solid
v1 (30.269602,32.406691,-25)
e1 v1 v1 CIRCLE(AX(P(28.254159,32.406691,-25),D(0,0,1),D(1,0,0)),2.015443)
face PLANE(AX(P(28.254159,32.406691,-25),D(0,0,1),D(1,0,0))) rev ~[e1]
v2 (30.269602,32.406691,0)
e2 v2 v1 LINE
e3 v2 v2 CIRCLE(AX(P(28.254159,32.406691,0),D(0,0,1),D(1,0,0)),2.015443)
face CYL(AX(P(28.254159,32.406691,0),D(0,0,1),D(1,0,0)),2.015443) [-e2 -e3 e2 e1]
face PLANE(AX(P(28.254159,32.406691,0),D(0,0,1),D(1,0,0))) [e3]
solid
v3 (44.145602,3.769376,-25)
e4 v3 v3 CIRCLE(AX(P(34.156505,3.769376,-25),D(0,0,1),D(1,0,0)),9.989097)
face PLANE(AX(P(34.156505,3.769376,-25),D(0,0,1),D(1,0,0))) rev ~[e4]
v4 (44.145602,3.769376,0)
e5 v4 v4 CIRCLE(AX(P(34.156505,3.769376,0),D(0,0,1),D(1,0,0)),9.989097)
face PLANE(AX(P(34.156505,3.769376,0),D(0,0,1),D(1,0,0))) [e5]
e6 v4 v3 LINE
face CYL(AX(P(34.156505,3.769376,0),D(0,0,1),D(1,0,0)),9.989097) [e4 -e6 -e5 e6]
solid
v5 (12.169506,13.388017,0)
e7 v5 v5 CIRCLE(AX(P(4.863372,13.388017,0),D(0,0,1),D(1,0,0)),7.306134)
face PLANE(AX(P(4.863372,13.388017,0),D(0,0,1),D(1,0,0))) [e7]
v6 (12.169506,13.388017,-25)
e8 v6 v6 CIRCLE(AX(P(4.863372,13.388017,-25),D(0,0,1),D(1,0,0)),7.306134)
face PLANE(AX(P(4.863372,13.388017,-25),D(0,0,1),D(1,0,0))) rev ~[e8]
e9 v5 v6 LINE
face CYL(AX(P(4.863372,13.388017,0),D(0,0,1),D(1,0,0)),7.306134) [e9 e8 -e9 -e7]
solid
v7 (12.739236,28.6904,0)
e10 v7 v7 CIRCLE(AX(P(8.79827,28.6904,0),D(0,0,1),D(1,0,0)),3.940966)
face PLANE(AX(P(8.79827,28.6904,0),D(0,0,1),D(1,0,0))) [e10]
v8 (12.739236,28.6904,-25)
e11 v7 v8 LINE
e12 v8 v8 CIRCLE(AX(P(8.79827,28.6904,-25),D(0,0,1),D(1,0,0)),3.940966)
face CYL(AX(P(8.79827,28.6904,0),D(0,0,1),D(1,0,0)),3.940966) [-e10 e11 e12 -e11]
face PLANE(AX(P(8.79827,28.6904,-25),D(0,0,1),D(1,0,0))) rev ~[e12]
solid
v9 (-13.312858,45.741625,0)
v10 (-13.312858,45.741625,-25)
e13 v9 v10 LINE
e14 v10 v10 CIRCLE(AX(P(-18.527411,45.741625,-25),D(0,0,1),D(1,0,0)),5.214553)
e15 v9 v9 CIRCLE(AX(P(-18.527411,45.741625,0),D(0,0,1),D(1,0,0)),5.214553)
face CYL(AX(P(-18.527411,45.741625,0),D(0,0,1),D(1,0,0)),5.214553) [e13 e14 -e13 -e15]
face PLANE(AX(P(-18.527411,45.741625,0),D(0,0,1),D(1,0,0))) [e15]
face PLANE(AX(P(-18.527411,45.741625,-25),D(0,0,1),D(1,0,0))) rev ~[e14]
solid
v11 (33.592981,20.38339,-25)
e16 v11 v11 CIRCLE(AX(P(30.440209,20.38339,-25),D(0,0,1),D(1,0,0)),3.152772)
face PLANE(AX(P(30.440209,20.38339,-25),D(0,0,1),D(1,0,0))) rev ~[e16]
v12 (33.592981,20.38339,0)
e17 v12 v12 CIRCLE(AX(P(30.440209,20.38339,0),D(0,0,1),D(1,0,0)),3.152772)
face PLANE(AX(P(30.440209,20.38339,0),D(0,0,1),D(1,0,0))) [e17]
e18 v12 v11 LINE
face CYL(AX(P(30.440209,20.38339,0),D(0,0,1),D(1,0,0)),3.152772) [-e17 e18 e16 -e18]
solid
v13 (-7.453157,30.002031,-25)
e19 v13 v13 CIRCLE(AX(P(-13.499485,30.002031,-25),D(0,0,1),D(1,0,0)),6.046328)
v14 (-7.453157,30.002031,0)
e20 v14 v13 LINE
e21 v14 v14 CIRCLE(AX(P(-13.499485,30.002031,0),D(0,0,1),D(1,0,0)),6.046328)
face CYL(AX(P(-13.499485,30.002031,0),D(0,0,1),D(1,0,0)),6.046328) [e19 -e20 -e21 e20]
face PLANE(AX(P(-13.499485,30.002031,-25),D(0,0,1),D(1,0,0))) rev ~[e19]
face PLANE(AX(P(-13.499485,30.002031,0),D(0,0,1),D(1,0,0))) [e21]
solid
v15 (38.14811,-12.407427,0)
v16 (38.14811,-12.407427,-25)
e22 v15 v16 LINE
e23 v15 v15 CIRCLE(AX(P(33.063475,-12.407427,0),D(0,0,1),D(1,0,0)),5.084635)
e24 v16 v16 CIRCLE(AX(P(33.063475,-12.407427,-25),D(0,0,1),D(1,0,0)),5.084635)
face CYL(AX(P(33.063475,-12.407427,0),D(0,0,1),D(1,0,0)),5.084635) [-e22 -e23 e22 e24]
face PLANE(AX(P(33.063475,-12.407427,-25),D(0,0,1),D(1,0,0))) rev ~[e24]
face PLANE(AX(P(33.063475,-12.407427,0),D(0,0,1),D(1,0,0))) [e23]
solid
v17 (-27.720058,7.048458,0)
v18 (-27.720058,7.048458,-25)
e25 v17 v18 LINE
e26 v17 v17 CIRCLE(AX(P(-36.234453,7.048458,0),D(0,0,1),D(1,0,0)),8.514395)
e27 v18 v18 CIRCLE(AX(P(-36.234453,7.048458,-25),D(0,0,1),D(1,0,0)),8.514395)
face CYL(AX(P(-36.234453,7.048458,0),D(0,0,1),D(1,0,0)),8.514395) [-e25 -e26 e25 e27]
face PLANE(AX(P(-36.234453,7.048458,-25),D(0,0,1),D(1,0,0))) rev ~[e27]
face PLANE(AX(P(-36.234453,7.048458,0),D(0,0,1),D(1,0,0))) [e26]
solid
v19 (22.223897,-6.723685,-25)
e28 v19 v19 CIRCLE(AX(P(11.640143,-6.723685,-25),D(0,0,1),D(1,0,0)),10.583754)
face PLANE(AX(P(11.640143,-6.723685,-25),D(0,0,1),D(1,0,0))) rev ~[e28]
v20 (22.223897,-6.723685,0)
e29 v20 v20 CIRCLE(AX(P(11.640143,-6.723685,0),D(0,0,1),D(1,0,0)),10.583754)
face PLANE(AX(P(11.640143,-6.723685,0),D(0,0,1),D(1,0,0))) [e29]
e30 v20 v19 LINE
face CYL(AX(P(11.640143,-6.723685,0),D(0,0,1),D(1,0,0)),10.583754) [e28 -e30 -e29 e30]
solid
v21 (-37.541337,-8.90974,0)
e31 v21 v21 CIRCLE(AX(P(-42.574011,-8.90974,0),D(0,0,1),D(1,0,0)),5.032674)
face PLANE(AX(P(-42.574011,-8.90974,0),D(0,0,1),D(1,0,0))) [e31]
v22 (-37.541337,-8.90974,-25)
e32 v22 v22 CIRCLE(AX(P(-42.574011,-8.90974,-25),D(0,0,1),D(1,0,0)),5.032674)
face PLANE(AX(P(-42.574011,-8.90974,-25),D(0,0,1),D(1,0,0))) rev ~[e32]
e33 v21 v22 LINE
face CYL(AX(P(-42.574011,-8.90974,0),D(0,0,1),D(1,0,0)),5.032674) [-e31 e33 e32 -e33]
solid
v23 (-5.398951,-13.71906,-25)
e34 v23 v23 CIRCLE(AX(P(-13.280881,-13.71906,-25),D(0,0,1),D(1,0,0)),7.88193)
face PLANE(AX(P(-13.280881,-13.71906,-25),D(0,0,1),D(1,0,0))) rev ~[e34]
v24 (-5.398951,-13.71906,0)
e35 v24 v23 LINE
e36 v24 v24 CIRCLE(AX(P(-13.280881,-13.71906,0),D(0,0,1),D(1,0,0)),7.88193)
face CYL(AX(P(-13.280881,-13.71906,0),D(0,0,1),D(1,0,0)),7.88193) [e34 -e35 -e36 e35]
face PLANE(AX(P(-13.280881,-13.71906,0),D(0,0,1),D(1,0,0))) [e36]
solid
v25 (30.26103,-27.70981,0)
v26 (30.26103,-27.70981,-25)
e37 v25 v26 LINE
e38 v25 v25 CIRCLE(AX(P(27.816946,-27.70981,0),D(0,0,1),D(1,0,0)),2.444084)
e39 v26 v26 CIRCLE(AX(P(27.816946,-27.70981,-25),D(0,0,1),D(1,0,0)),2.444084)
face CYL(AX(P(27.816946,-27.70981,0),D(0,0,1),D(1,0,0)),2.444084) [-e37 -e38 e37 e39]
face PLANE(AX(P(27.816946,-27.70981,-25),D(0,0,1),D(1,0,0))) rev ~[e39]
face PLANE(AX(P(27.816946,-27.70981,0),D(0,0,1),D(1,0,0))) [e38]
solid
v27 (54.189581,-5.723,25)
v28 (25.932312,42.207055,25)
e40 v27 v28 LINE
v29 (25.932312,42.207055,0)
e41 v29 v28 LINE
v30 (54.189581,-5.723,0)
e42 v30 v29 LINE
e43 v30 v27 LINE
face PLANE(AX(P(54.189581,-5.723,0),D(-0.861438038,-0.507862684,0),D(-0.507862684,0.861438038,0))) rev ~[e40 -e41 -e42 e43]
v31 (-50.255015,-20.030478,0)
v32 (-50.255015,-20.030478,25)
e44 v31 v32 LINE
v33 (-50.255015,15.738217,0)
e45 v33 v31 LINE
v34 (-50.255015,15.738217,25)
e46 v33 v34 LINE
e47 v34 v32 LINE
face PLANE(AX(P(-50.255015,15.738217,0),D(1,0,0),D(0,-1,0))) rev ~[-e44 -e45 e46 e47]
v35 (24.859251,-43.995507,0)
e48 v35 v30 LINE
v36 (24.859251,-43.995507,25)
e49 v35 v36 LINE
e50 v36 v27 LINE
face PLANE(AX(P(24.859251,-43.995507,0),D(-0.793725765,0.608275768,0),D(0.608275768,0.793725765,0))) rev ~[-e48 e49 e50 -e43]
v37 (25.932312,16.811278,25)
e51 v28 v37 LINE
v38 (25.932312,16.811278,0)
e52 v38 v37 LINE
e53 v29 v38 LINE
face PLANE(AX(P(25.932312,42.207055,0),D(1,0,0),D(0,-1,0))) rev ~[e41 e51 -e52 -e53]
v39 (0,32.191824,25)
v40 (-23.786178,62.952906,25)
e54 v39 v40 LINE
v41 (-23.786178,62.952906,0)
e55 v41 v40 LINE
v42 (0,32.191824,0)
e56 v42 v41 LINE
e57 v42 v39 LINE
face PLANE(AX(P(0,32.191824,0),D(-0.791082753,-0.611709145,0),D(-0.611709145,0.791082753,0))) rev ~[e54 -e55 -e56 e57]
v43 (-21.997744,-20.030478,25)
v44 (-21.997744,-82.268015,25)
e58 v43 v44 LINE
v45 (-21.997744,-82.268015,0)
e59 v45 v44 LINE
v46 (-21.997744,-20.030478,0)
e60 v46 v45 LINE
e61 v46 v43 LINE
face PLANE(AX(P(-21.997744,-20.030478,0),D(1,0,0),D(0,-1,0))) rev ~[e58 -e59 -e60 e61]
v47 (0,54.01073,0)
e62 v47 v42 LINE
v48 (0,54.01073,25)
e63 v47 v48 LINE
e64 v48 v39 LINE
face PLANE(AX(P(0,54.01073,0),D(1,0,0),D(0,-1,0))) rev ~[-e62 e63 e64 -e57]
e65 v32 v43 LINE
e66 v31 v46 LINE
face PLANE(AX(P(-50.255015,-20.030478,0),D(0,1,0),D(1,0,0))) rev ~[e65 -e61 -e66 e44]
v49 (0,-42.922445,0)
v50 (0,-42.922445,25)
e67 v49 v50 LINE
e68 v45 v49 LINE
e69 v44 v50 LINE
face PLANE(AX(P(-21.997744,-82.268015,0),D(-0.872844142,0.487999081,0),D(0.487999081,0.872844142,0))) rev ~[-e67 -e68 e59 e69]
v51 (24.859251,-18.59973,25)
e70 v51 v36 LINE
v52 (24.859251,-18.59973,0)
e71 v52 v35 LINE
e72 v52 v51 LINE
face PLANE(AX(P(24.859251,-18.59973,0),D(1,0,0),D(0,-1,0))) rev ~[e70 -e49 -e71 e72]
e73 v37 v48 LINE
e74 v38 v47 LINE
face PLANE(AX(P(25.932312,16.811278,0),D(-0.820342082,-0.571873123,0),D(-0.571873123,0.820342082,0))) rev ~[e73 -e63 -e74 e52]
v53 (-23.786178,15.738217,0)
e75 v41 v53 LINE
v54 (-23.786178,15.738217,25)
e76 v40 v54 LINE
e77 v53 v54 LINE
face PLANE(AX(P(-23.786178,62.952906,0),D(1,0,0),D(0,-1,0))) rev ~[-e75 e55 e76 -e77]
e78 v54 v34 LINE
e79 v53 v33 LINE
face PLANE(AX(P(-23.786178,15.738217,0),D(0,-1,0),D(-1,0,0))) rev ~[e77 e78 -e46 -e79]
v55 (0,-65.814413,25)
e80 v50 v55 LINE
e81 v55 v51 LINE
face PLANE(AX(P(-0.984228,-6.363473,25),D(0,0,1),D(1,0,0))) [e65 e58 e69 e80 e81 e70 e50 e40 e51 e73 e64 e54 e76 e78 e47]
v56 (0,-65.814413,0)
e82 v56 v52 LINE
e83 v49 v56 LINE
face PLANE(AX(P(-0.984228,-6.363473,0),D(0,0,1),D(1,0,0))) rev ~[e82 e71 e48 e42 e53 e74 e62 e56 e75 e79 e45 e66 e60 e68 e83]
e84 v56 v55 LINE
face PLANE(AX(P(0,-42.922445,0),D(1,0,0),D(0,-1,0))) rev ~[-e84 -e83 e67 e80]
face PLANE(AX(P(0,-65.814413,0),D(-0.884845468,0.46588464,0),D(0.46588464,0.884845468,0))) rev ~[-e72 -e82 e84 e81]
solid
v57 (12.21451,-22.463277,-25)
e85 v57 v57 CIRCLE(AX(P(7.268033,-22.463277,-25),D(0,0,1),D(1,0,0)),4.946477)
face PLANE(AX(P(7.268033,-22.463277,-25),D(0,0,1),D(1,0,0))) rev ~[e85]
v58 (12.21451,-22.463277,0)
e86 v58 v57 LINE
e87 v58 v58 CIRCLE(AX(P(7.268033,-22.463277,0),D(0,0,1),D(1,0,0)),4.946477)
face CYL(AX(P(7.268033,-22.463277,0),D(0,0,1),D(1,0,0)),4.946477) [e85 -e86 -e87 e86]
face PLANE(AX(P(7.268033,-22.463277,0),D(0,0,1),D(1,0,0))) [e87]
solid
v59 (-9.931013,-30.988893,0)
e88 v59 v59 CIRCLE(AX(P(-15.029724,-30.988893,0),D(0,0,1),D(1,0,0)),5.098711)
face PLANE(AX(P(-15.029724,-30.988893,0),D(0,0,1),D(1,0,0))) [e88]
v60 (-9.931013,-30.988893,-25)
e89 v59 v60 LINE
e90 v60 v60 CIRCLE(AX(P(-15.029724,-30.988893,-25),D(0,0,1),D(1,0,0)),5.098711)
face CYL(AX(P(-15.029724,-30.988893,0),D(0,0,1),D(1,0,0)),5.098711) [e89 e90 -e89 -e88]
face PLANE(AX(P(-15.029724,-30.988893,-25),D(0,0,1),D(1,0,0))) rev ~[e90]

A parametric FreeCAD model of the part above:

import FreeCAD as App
import Part
import Sketcher

V = App.Vector
Q = App.Units.Quantity

doc = App.newDocument("Part")
body = doc.addObject("PartDesign::Body", "Body")

# Sketch on XY plane
sketch1 = body.newObject("Sketcher::SketchObject", "Sketch")
sketch1.AttachmentSupport = (doc.getObject("XY_Plane"), [""])
sketch1.MapMode = "FlatFace"
sketch1.addGeometry([
    Part.LineSegment(V(25, -44, 0), V(54, -6, 0)),  # 0
    Part.LineSegment(V(54, -6, 0), V(26, 42, 0)),  # 1
    Part.LineSegment(V(26, 42, 0), V(26, 17, 0)),  # 2
    Part.LineSegment(V(26, 17, 0), V(0, 54, 0)),  # 3
    Part.LineSegment(V(0, 54, 0), V(0, 32, 0)),  # 4
    Part.LineSegment(V(0, 32, 0), V(-24, 63, 0)),  # 5
    Part.LineSegment(V(-24, 63, 0), V(-24, 16, 0)),  # 6
    Part.LineSegment(V(-24, 16, 0), V(-50, 16, 0)),  # 7
    Part.LineSegment(V(-50, 16, 0), V(-50, -20, 0)),  # 8
    Part.LineSegment(V(-50, -20, 0), V(-22, -20, 0)),  # 9
    Part.LineSegment(V(-22, -20, 0), V(-22, -82, 0)),  # 10
    Part.LineSegment(V(-22, -82, 0), V(0, -43, 0)),  # 11
    Part.LineSegment(V(0, -43, 0), V(0, -66, 0)),  # 12
    Part.LineSegment(V(0, -66, 0), V(25, -19, 0)),  # 13
    Part.LineSegment(V(25, -19, 0), V(25, -44, 0)),  # 14
], False)
sketch1.addConstraint([
    Sketcher.Constraint("Coincident", 0, 2, 1, 1),
    Sketcher.Constraint("Coincident", 1, 2, 2, 1),
    Sketcher.Constraint("Coincident", 2, 2, 3, 1),
    Sketcher.Constraint("Coincident", 3, 2, 4, 1),
    Sketcher.Constraint("Coincident", 4, 2, 5, 1),
    Sketcher.Constraint("Coincident", 5, 2, 6, 1),
    Sketcher.Constraint("Coincident", 6, 2, 7, 1),
    Sketcher.Constraint("Coincident", 7, 2, 8, 1),
    Sketcher.Constraint("Coincident", 8, 2, 9, 1),
    Sketcher.Constraint("Coincident", 9, 2, 10, 1),
    Sketcher.Constraint("Coincident", 10, 2, 11, 1),
    Sketcher.Constraint("Coincident", 11, 2, 12, 1),
    Sketcher.Constraint("Coincident", 12, 2, 13, 1),
    Sketcher.Constraint("Coincident", 13, 2, 14, 1),
    Sketcher.Constraint("Coincident", 14, 2, 0, 1),
    Sketcher.Constraint("Vertical", 2),
    Sketcher.Constraint("Vertical", 4),
    Sketcher.Constraint("Vertical", 6),
    Sketcher.Constraint("Horizontal", 7),
    Sketcher.Constraint("Vertical", 8),
    Sketcher.Constraint("Horizontal", 9),
    Sketcher.Constraint("Vertical", 10),
    Sketcher.Constraint("Vertical", 12),
    Sketcher.Constraint("Vertical", 14),
    Sketcher.Constraint("PointOnObject", 3, 2, -2),
    Sketcher.Constraint("PointOnObject", 11, 2, -2),
    Sketcher.Constraint("Equal", 2, 14),
    Sketcher.Constraint("DistanceY", 0, 2, -1, 1, Q("5.723 mm")),
    Sketcher.Constraint("DistanceX", 9, 1, 9, 2, Q("28.257271 mm")),
    Sketcher.Constraint("DistanceY", 6, 2, 6, 1, Q("47.214689 mm")),
    Sketcher.Constraint("Distance", 3, Q("45.346268 mm")),
    Sketcher.Constraint("Distance", 11, Q("45.077429 mm")),
    Sketcher.Constraint("Distance", 13, Q("53.359241 mm")),
    Sketcher.Constraint("DistanceX", 7, 2, 7, 1, Q("26.468837 mm")),
    Sketcher.Constraint("DistanceY", 2, 2, 2, 1, Q("25.395777 mm")),
    Sketcher.Constraint("DistanceY", 4, 2, 4, 1, Q("21.818906 mm")),
    Sketcher.Constraint("DistanceY", 8, 2, 8, 1, Q("35.768695 mm")),
    Sketcher.Constraint("DistanceY", 10, 2, 10, 1, Q("62.237537 mm")),
    Sketcher.Constraint("DistanceY", 12, 2, 12, 1, Q("22.891968 mm")),
    Sketcher.Constraint("DistanceX", -1, 1, 0, 2, Q("54.189581 mm")),
    Sketcher.Constraint("DistanceX", -1, 1, 1, 2, Q("25.932312 mm")),
    Sketcher.Constraint("DistanceY", -1, 1, 2, 2, Q("16.811278 mm")),
    Sketcher.Constraint("DistanceX", -1, 1, 13, 2, Q("24.859251 mm")),
    Sketcher.Constraint("DistanceY", 13, 2, -1, 1, Q("18.59973 mm")),
    Sketcher.Constraint("DistanceX", 5, 2, 1, 2, Q("49.71849 mm")),
])
pad1 = body.newObject("PartDesign::Pad", "Pad")
pad1.Profile = sketch1
pad1.Length = 25
body2 = doc.addObject("PartDesign::Body", "Body001")
body2.AllowCompound = True

# Sketch on XY plane
sketch2 = body2.newObject("Sketcher::SketchObject", "Sketch001")
sketch2.AttachmentSupport = (doc.getObject("XY_Plane001"), [""])
sketch2.MapMode = "FlatFace"
sketch2.addGeometry([
    Part.Circle(V(-42.6, -8.9, 0), V(0, 0, 1), 5),  # 0
    Part.Circle(V(-13.5, 30, 0), V(0, 0, 1), 6),  # 1
    Part.Circle(V(27.8, -27.7, 0), V(0, 0, 1), 2.4),  # 2
    Part.Circle(V(-18.5, 45.7, 0), V(0, 0, 1), 5.2),  # 3
    Part.Circle(V(7.3, -22.5, 0), V(0, 0, 1), 4.9),  # 4
    Part.Circle(V(34.2, 3.8, 0), V(0, 0, 1), 10),  # 5
    Part.Circle(V(11.6, -6.7, 0), V(0, 0, 1), 10.6),  # 6
    Part.Circle(V(-15, -31, 0), V(0, 0, 1), 5.1),  # 7
    Part.Circle(V(-13.3, -13.7, 0), V(0, 0, 1), 7.9),  # 8
    Part.Circle(V(-36.2, 7, 0), V(0, 0, 1), 8.5),  # 9
    Part.Circle(V(33.1, -12.4, 0), V(0, 0, 1), 5.1),  # 10
    Part.Circle(V(4.9, 13.4, 0), V(0, 0, 1), 7.3),  # 11
    Part.Circle(V(8.8, 28.7, 0), V(0, 0, 1), 3.9),  # 12
    Part.Circle(V(30.4, 20.4, 0), V(0, 0, 1), 3.2),  # 13
    Part.Circle(V(28.3, 32.4, 0), V(0, 0, 1), 2),  # 14
], False)
sketch2.addConstraint([
    Sketcher.Constraint("Diameter", 2, Q("4.888168 mm")),
    Sketcher.Constraint("Diameter", 6, Q("21.167508 mm")),
    Sketcher.Constraint("Diameter", 8, Q("15.76386 mm")),
    Sketcher.Constraint("Diameter", 9, Q("17.02879 mm")),
    Sketcher.Constraint("Diameter", 10, Q("10.16927 mm")),
    Sketcher.Constraint("Diameter", 0, Q("10.065348 mm")),
    Sketcher.Constraint("Diameter", 1, Q("12.092656 mm")),
    Sketcher.Constraint("Diameter", 3, Q("10.429106 mm")),
    Sketcher.Constraint("Diameter", 4, Q("9.892954 mm")),
    Sketcher.Constraint("Diameter", 5, Q("19.978194 mm")),
    Sketcher.Constraint("Diameter", 7, Q("10.197422 mm")),
    Sketcher.Constraint("Diameter", 11, Q("14.612268 mm")),
    Sketcher.Constraint("Diameter", 12, Q("7.881932 mm")),
    Sketcher.Constraint("Diameter", 13, Q("6.305544 mm")),
    Sketcher.Constraint("Diameter", 14, Q("4.030886 mm")),
    Sketcher.Constraint("DistanceY", -1, 1, 12, 3, Q("28.6904 mm")),
    Sketcher.Constraint("DistanceX", 0, 3, 3, 3, Q("24.0466 mm")),
    Sketcher.Constraint("DistanceX", 11, 3, 12, 3, Q("3.934898 mm")),
    Sketcher.Constraint("DistanceY", 13, 3, 14, 3, Q("12.023301 mm")),
    Sketcher.Constraint("DistanceX", 0, 3, -1, 1, Q("42.574011 mm")),
    Sketcher.Constraint("DistanceY", 0, 3, -1, 1, Q("8.90974 mm")),
    Sketcher.Constraint("DistanceY", -1, 1, 1, 3, Q("30.002031 mm")),
    Sketcher.Constraint("DistanceY", 2, 3, -1, 1, Q("27.70981 mm")),
    Sketcher.Constraint("DistanceX", 8, 3, -1, 1, Q("13.280881 mm")),
    Sketcher.Constraint("DistanceY", 8, 3, -1, 1, Q("13.71906 mm")),
    Sketcher.Constraint("DistanceX", -1, 1, 12, 3, Q("8.79827 mm")),
    Sketcher.Constraint("DistanceX", -1, 1, 13, 3, Q("30.440209 mm")),
    Sketcher.Constraint("DistanceY", -1, 1, 13, 3, Q("20.38339 mm")),
    Sketcher.Constraint("DistanceX", -1, 1, 14, 3, Q("28.254159 mm")),
    Sketcher.Constraint("DistanceX", 1, 3, 2, 3, Q("41.316431 mm")),
    Sketcher.Constraint("DistanceX", 2, 3, 5, 3, Q("6.339559 mm")),
    Sketcher.Constraint("DistanceY", 5, 3, 3, 3, Q("41.972249 mm")),
    Sketcher.Constraint("DistanceX", 4, 3, 6, 3, Q("4.37211 mm")),
    Sketcher.Constraint("DistanceY", 6, 3, 5, 3, Q("10.493061 mm")),
    Sketcher.Constraint("DistanceX", 1, 3, 6, 3, Q("25.139628 mm")),
    Sketcher.Constraint("DistanceY", 7, 3, 6, 3, Q("24.265208 mm")),
    Sketcher.Constraint("DistanceX", 7, 3, 2, 3, Q("42.84667 mm")),
    Sketcher.Constraint("DistanceY", 8, 3, 9, 3, Q("20.767518 mm")),
    Sketcher.Constraint("DistanceX", 9, 3, 1, 3, Q("22.734968 mm")),
    Sketcher.Constraint("DistanceY", 7, 3, 9, 3, Q("38.037351 mm")),
    Sketcher.Constraint("DistanceX", 2, 3, 10, 3, Q("5.246529 mm")),
    Sketcher.Constraint("DistanceY", 4, 3, 10, 3, Q("10.05585 mm")),
    Sketcher.Constraint("DistanceX", 11, 3, 6, 3, Q("6.776771 mm")),
    Sketcher.Constraint("DistanceY", 5, 3, 11, 3, Q("9.618641 mm")),
    Sketcher.Constraint("DistanceY", 4, 3, -1, 1, Q("22.463277 mm")),
])
pad2 = body2.newObject("PartDesign::Pad", "Pad001")
pad2.Profile = sketch2
pad2.Length = 25
pad2.Reversed = True

doc.recompute()
